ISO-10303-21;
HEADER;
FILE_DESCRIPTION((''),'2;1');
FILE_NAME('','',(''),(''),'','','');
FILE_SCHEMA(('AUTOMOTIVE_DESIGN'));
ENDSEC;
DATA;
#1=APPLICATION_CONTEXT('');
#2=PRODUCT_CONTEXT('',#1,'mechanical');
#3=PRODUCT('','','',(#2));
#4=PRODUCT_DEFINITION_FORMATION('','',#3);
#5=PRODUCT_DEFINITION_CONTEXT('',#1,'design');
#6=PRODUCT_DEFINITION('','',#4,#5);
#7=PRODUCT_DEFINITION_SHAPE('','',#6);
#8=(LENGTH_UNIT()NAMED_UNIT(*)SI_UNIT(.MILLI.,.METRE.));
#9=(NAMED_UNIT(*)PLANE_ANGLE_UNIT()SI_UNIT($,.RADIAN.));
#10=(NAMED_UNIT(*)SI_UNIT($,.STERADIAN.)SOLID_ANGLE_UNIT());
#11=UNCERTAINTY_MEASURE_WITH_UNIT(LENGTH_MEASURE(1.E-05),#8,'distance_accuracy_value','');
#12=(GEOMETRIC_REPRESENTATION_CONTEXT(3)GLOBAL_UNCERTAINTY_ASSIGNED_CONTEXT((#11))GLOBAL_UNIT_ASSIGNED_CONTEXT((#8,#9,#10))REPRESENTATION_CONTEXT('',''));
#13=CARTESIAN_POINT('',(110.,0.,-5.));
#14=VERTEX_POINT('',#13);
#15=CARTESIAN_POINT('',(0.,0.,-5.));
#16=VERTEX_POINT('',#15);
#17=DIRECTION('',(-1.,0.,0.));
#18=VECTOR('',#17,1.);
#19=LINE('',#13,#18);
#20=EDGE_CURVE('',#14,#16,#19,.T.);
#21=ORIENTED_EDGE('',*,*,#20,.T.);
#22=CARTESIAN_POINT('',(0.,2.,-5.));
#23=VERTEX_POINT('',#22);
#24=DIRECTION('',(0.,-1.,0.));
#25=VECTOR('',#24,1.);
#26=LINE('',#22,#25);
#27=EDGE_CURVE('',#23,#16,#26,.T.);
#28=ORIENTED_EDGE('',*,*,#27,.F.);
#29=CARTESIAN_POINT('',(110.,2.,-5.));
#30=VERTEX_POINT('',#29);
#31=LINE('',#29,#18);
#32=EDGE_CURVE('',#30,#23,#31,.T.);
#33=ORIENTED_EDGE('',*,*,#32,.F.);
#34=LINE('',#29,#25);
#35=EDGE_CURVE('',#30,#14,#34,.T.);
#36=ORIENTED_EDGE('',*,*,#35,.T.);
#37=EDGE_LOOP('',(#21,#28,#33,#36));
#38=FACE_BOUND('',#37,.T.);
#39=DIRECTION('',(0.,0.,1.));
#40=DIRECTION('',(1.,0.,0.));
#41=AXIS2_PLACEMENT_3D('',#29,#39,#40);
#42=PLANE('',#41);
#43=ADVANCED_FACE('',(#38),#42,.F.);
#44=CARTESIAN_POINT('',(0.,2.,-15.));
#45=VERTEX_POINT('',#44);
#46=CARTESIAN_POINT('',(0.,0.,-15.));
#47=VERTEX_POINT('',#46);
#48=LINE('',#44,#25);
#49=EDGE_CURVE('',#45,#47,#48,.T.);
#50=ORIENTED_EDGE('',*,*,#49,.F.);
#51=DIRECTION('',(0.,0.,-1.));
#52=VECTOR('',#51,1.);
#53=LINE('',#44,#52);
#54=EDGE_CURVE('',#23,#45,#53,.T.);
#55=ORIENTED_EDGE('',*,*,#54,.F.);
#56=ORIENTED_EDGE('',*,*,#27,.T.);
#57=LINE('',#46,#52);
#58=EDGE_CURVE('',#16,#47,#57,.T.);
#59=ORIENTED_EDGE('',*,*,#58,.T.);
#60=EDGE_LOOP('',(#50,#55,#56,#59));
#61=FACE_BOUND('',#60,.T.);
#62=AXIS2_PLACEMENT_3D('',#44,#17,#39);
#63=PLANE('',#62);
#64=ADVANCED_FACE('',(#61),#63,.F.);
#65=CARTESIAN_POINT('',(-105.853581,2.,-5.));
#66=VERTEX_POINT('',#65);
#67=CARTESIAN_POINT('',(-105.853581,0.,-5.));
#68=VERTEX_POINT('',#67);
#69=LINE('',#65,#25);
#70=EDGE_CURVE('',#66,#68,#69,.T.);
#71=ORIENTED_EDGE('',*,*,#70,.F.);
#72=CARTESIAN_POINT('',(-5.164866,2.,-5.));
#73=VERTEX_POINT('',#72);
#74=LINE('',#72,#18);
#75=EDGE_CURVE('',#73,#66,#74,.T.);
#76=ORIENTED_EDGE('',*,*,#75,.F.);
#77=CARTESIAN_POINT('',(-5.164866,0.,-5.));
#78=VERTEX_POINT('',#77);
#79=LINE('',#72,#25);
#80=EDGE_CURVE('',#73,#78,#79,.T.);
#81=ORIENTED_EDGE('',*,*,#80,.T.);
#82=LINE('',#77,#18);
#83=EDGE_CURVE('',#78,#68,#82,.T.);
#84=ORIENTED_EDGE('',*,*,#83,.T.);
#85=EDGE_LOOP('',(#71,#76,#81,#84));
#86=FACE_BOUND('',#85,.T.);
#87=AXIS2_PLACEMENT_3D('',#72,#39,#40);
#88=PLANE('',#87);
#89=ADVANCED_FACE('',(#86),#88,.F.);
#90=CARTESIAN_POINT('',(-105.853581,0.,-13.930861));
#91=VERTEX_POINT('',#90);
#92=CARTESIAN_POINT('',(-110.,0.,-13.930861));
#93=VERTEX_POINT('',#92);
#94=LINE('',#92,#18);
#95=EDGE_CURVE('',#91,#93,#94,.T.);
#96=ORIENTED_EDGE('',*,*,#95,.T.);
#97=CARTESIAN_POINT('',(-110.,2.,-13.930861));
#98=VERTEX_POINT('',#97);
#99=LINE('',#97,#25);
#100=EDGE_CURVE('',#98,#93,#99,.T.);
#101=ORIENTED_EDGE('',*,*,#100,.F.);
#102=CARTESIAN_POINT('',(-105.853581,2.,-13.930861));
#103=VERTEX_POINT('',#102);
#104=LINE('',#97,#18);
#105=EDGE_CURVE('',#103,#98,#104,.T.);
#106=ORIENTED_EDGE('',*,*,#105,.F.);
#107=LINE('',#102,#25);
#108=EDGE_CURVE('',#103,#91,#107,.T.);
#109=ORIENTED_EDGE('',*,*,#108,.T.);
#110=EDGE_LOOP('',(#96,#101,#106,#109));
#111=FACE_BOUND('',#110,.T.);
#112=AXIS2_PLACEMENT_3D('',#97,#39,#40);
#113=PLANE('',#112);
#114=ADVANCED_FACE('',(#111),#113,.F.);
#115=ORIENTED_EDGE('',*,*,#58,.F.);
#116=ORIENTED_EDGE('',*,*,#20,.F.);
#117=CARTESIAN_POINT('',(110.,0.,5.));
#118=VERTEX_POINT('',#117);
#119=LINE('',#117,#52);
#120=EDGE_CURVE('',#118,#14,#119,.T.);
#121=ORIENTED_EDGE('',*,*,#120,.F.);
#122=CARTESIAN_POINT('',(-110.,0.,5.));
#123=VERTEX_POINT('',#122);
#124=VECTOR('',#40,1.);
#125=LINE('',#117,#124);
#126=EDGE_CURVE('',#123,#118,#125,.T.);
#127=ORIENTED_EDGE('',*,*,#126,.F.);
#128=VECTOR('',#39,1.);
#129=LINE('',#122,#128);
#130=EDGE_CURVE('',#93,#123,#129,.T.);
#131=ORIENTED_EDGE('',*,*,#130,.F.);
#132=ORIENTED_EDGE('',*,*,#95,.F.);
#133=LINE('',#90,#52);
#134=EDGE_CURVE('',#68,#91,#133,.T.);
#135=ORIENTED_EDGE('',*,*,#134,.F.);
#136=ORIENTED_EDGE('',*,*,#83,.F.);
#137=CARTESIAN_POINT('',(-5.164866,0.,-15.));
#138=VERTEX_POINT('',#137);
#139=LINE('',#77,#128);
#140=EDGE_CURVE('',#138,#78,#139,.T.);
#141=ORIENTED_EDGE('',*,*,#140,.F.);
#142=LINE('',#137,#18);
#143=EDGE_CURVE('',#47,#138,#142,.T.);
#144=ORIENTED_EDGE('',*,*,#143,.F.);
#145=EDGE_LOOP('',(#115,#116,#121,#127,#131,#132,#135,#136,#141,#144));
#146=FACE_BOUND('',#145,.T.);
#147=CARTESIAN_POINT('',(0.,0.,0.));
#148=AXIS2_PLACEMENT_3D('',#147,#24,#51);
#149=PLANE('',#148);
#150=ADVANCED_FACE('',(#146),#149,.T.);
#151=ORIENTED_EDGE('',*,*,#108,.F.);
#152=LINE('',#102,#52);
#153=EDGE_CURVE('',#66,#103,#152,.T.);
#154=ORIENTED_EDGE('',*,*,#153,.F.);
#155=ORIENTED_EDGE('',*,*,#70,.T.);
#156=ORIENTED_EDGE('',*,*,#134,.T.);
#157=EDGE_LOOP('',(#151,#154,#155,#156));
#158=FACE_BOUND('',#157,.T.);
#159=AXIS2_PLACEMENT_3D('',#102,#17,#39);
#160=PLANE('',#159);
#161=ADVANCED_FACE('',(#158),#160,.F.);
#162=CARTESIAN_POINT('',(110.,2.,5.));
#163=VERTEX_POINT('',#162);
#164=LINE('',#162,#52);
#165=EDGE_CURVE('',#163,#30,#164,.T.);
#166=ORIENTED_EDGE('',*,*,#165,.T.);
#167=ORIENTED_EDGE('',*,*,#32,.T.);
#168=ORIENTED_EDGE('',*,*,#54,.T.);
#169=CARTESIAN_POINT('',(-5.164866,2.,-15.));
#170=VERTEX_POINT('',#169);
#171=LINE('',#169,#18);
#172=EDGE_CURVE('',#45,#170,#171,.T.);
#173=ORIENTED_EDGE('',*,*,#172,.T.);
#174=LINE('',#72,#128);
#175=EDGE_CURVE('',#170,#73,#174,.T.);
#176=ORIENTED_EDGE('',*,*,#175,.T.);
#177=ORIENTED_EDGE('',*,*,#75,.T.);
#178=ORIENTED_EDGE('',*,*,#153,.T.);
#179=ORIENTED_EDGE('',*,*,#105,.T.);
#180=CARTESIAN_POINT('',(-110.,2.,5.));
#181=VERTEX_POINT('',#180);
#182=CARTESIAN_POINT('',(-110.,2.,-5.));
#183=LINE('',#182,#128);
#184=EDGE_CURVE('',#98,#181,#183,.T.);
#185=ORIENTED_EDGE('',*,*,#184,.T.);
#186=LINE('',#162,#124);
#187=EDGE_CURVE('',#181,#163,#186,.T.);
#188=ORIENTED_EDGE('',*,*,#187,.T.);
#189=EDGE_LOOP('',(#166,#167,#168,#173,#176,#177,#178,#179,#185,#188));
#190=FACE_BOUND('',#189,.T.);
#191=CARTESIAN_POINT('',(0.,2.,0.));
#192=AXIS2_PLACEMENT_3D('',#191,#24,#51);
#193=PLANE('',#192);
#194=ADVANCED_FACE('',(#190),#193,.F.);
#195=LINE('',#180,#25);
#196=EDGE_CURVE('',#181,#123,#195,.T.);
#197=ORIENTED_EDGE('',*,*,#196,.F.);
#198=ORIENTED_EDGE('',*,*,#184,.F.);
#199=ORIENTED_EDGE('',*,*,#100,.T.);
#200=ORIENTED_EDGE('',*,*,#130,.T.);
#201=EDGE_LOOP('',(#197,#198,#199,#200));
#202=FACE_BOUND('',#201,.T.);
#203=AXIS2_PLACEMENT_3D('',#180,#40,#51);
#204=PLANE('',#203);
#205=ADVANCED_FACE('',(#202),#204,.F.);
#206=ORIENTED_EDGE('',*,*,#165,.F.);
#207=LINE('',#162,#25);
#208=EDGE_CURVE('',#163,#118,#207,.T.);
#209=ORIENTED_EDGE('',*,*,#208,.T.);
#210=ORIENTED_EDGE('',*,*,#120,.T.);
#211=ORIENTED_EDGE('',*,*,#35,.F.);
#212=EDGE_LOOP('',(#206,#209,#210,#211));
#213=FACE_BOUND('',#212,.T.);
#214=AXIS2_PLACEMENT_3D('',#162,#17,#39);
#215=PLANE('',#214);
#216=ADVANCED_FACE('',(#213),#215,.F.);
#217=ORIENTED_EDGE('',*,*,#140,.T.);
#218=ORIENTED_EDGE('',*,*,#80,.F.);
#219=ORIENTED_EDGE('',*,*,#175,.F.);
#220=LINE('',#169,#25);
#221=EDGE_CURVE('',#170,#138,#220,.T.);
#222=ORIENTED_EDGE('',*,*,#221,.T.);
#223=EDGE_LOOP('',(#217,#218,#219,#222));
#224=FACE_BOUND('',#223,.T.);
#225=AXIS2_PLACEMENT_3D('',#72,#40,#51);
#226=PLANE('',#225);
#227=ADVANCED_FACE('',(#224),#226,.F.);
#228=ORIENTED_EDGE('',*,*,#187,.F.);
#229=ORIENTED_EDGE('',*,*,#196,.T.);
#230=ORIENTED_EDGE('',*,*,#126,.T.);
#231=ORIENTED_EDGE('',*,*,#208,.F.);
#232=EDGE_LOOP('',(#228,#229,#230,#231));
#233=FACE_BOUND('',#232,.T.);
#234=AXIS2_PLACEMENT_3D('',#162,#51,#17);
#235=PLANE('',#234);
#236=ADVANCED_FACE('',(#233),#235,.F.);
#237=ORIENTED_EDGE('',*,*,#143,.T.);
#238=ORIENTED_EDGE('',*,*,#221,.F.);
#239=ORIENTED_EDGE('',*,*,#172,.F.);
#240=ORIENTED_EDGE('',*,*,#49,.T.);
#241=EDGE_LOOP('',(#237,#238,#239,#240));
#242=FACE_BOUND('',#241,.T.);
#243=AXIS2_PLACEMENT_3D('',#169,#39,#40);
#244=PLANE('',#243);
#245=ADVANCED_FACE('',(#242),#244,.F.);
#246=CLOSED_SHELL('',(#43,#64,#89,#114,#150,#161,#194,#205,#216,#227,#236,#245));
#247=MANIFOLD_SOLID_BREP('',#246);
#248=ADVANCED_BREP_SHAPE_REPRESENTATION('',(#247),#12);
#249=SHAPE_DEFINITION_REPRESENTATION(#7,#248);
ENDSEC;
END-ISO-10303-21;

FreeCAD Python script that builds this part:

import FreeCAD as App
import Part
import Sketcher
from FreeCAD import Vector

doc = App.newDocument("Part")
params = doc.addObject("Spreadsheet::Sheet", "Params")
for row, (alias, value) in enumerate([
    ("sketch1_width", "220 mm"),
    ("sketch1_height", "10 mm"),
    ("pad1_length", "2 mm"),
], start=1):
    params.set(f"A{row}", alias)
    params.set(f"B{row}", "=" + value)
    params.setAlias(f"B{row}", alias)

body = doc.addObject("PartDesign::Body", "Body")

# Sketch on XZ plane
sketch1 = doc.addObject("Sketcher::SketchObject", "Sketch")
body.addObject(sketch1)
sketch1.AttachmentSupport = (doc.XZ_Plane, [""])
sketch1.MapMode = "FlatFace"
sketch1.addGeometry([
    Part.LineSegment(Vector(-110, 5, 0), Vector(110, 5, 0)),  # 0
    Part.LineSegment(Vector(110, 5, 0), Vector(110, -5, 0)),  # 1
    Part.LineSegment(Vector(110, -5, 0), Vector(0, -5, 0)),  # 2
    Part.LineSegment(Vector(0, -5, 0), Vector(0, -15, 0)),  # 3
    Part.LineSegment(Vector(0, -15, 0), Vector(-5.2, -15, 0)),  # 4
    Part.LineSegment(Vector(-5.2, -15, 0), Vector(-5.2, -5, 0)),  # 5
    Part.LineSegment(Vector(-5.2, -5, 0), Vector(-105.9, -5, 0)),  # 6
    Part.LineSegment(Vector(-105.9, -5, 0), Vector(-105.9, -13.9, 0)),  # 7
    Part.LineSegment(Vector(-105.9, -13.9, 0), Vector(-110, -13.9, 0)),  # 8
    Part.LineSegment(Vector(-110, -13.9, 0), Vector(-110, 5, 0)),  # 9
], False)
sketch1.addConstraint([
    Sketcher.Constraint("Coincident", 0, 2, 1, 1),
    Sketcher.Constraint("Coincident", 1, 2, 2, 1),
    Sketcher.Constraint("Coincident", 2, 2, 3, 1),
    Sketcher.Constraint("Coincident", 3, 2, 4, 1),
    Sketcher.Constraint("Coincident", 4, 2, 5, 1),
    Sketcher.Constraint("Coincident", 5, 2, 6, 1),
    Sketcher.Constraint("Coincident", 6, 2, 7, 1),
    Sketcher.Constraint("Coincident", 7, 2, 8, 1),
    Sketcher.Constraint("Coincident", 8, 2, 9, 1),
    Sketcher.Constraint("Coincident", 9, 2, 0, 1),
    Sketcher.Constraint("Horizontal", 0),
    Sketcher.Constraint("Vertical", 1),
    Sketcher.Constraint("Horizontal", 2),
    Sketcher.Constraint("Vertical", 3),
    Sketcher.Constraint("Horizontal", 4),
    Sketcher.Constraint("Vertical", 5),
    Sketcher.Constraint("Horizontal", 6),
    Sketcher.Constraint("Vertical", 7),
    Sketcher.Constraint("Horizontal", 8),
    Sketcher.Constraint("Vertical", 9),
    Sketcher.Constraint("Symmetric", 1, 2, 9, 2, -1, 1),
    Sketcher.Constraint("PointOnObject", 2, 2, -2),
    Sketcher.Constraint("Horizontal", 2, 2, 5, 2),
    Sketcher.Constraint("Equal", 1, 3),
    Sketcher.Constraint("DistanceX", 0, 1, 0, 2, 220.0),
    Sketcher.Constraint("DistanceY", 1, 2, 1, 1, 10.0),
    Sketcher.Constraint("DistanceX", 8, 2, 8, 1, 4.146419),
    Sketcher.Constraint("DistanceY", 7, 2, 7, 1, 8.930861),
    Sketcher.Constraint("DistanceX", 4, 2, 4, 1, 5.164866),
])
sketch1.setExpression("Constraints[24]", "Params.sketch1_width")
sketch1.setExpression("Constraints[25]", "Params.sketch1_height")
pad1 = doc.addObject("PartDesign::Pad", "Pad")
body.addObject(pad1)
pad1.Profile = sketch1
pad1.setExpression("Length", "Params.pad1_length")
pad1.Reversed = True

doc.recompute()
